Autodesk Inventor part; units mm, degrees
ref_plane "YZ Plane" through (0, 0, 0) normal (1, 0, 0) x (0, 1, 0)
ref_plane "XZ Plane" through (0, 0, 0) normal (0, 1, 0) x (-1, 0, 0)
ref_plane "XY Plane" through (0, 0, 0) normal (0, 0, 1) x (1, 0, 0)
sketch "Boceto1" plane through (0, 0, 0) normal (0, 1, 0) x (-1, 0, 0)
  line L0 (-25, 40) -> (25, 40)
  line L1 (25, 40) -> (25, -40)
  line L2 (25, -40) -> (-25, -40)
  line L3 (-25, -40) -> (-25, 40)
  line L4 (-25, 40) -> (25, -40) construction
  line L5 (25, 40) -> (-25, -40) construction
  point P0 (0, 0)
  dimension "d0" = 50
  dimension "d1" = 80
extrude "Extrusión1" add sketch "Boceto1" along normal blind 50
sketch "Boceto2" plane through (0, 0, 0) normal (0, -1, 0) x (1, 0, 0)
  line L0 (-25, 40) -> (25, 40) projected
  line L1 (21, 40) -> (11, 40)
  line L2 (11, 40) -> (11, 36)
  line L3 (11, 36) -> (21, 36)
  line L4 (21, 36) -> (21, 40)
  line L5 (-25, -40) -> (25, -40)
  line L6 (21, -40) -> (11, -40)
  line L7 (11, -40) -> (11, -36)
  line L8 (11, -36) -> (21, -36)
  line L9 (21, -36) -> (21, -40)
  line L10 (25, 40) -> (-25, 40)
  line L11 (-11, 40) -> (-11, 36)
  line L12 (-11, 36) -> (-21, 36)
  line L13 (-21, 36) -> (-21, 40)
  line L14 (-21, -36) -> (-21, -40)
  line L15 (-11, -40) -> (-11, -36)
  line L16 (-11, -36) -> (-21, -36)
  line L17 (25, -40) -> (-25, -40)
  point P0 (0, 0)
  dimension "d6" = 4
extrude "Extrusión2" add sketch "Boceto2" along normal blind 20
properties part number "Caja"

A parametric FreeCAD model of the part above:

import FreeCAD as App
import Part
import Sketcher
from FreeCAD import Vector

doc = App.newDocument("Part")
body = doc.addObject("PartDesign::Body", "Body")

sketch1 = body.newObject("Sketcher::SketchObject", "Sketch")
sketch1.AttachmentSupport = (doc.getObject("XZ_Plane"), [""])
sketch1.MapMode = "FlatFace"
sketch1.addGeometry([
    Part.LineSegment(Vector(-25, 40, 0), Vector(25, 40, 0)),
    Part.LineSegment(Vector(25, 40, 0), Vector(25, -40, 0)),
    Part.LineSegment(Vector(25, -40, 0), Vector(-25, -40, 0)),
    Part.LineSegment(Vector(-25, -40, 0), Vector(-25, 40, 0)),
], False)
sketch1.addConstraint([
    Sketcher.Constraint("Coincident", 0, 2, 1, 1),
    Sketcher.Constraint("Coincident", 1, 2, 2, 1),
    Sketcher.Constraint("Coincident", 2, 2, 3, 1),
    Sketcher.Constraint("Coincident", 3, 2, 0, 1),
    Sketcher.Constraint("Horizontal", 0),
    Sketcher.Constraint("Vertical", 1),
    Sketcher.Constraint("Horizontal", 2),
    Sketcher.Constraint("Vertical", 3),
    Sketcher.Constraint("Symmetric", 0, 2, 2, 2, -1, 1),
    Sketcher.Constraint("DistanceX", 0, 1, 0, 2, 50.0),
    Sketcher.Constraint("DistanceY", 1, 2, 1, 1, 80.0),
])
pad1 = body.newObject("PartDesign::Pad", "Pad")
pad1.Profile = sketch1
pad1.Length = 50
pad1.Reversed = True

sketch2 = body.newObject("Sketcher::SketchObject", "Sketch001")
sketch2.AttachmentSupport = (doc.getObject("XZ_Plane"), [""])
sketch2.MapMode = "FlatFace"
sketch2.addGeometry([
    Part.LineSegment(Vector(21, 40, 0), Vector(11, 40, 0)),
    Part.LineSegment(Vector(11, 40, 0), Vector(11, 36, 0)),
    Part.LineSegment(Vector(11, 36, 0), Vector(21, 36, 0)),
    Part.LineSegment(Vector(21, 36, 0), Vector(21, 40, 0)),
    Part.LineSegment(Vector(-11, 40, 0), Vector(-21, 40, 0)),
    Part.LineSegment(Vector(-21, 40, 0), Vector(-21, 36, 0)),
    Part.LineSegment(Vector(-21, 36, 0), Vector(-11, 36, 0)),
    Part.LineSegment(Vector(-11, 36, 0), Vector(-11, 40, 0)),
    Part.LineSegment(Vector(-21, -36, 0), Vector(-21, -40, 0)),
    Part.LineSegment(Vector(-21, -40, 0), Vector(-11, -40, 0)),
    Part.LineSegment(Vector(-11, -40, 0), Vector(-11, -36, 0)),
    Part.LineSegment(Vector(-11, -36, 0), Vector(-21, -36, 0)),
    Part.LineSegment(Vector(11, -36, 0), Vector(11, -40, 0)),
    Part.LineSegment(Vector(11, -40, 0), Vector(21, -40, 0)),
    Part.LineSegment(Vector(21, -40, 0), Vector(21, -36, 0)),
    Part.LineSegment(Vector(21, -36, 0), Vector(11, -36, 0)),
], False)
sketch2.addConstraint([
    Sketcher.Constraint("Coincident", 0, 2, 1, 1),
    Sketcher.Constraint("Coincident", 1, 2, 2, 1),
    Sketcher.Constraint("Coincident", 2, 2, 3, 1),
    Sketcher.Constraint("Coincident", 3, 2, 0, 1),
    Sketcher.Constraint("Coincident", 4, 2, 5, 1),
    Sketcher.Constraint("Coincident", 5, 2, 6, 1),
    Sketcher.Constraint("Coincident", 6, 2, 7, 1),
    Sketcher.Constraint("Coincident", 7, 2, 4, 1),
    Sketcher.Constraint("Coincident", 8, 2, 9, 1),
    Sketcher.Constraint("Coincident", 9, 2, 10, 1),
    Sketcher.Constraint("Coincident", 10, 2, 11, 1),
    Sketcher.Constraint("Coincident", 11, 2, 8, 1),
    Sketcher.Constraint("Coincident", 12, 2, 13, 1),
    Sketcher.Constraint("Coincident", 13, 2, 14, 1),
    Sketcher.Constraint("Coincident", 14, 2, 15, 1),
    Sketcher.Constraint("Coincident", 15, 2, 12, 1),
    Sketcher.Constraint("Horizontal", 0),
    Sketcher.Constraint("Vertical", 1),
    Sketcher.Constraint("Horizontal", 2),
    Sketcher.Constraint("Vertical", 3),
    Sketcher.Constraint("Horizontal", 4),
    Sketcher.Constraint("Vertical", 5),
    Sketcher.Constraint("Horizontal", 6),
    Sketcher.Constraint("Vertical", 7),
    Sketcher.Constraint("Vertical", 8),
    Sketcher.Constraint("Horizontal", 9),
    Sketcher.Constraint("Vertical", 10),
    Sketcher.Constraint("Horizontal", 11),
    Sketcher.Constraint("Vertical", 12),
    Sketcher.Constraint("Horizontal", 13),
    Sketcher.Constraint("Vertical", 14),
    Sketcher.Constraint("Horizontal", 15),
    Sketcher.Constraint("Symmetric", 3, 2, 8, 2, -1, 1),
    Sketcher.Constraint("Symmetric", 1, 2, 10, 2, -1, 1),
    Sketcher.Constraint("Symmetric", 7, 2, 12, 2, -1, 1),
    Sketcher.Constraint("Symmetric", 5, 2, 14, 2, -1, 1),
    Sketcher.Constraint("Symmetric", 3, 2, 4, 2, -2),
    Sketcher.Constraint("Symmetric", 1, 2, 6, 2, -2),
    Sketcher.Constraint("DistanceY", 1, 2, 1, 1, 4.0),
    Sketcher.Constraint("DistanceX", 0, 2, 0, 1, 10.0),
    Sketcher.Constraint("DistanceX", -1, 1, 0, 2, 11.0),
    Sketcher.Constraint("DistanceY", -1, 1, 0, 2, 40.0),
])
pad2 = body.newObject("PartDesign::Pad", "Pad001")
pad2.Profile = sketch2
pad2.Length = 20

doc.recompute()
